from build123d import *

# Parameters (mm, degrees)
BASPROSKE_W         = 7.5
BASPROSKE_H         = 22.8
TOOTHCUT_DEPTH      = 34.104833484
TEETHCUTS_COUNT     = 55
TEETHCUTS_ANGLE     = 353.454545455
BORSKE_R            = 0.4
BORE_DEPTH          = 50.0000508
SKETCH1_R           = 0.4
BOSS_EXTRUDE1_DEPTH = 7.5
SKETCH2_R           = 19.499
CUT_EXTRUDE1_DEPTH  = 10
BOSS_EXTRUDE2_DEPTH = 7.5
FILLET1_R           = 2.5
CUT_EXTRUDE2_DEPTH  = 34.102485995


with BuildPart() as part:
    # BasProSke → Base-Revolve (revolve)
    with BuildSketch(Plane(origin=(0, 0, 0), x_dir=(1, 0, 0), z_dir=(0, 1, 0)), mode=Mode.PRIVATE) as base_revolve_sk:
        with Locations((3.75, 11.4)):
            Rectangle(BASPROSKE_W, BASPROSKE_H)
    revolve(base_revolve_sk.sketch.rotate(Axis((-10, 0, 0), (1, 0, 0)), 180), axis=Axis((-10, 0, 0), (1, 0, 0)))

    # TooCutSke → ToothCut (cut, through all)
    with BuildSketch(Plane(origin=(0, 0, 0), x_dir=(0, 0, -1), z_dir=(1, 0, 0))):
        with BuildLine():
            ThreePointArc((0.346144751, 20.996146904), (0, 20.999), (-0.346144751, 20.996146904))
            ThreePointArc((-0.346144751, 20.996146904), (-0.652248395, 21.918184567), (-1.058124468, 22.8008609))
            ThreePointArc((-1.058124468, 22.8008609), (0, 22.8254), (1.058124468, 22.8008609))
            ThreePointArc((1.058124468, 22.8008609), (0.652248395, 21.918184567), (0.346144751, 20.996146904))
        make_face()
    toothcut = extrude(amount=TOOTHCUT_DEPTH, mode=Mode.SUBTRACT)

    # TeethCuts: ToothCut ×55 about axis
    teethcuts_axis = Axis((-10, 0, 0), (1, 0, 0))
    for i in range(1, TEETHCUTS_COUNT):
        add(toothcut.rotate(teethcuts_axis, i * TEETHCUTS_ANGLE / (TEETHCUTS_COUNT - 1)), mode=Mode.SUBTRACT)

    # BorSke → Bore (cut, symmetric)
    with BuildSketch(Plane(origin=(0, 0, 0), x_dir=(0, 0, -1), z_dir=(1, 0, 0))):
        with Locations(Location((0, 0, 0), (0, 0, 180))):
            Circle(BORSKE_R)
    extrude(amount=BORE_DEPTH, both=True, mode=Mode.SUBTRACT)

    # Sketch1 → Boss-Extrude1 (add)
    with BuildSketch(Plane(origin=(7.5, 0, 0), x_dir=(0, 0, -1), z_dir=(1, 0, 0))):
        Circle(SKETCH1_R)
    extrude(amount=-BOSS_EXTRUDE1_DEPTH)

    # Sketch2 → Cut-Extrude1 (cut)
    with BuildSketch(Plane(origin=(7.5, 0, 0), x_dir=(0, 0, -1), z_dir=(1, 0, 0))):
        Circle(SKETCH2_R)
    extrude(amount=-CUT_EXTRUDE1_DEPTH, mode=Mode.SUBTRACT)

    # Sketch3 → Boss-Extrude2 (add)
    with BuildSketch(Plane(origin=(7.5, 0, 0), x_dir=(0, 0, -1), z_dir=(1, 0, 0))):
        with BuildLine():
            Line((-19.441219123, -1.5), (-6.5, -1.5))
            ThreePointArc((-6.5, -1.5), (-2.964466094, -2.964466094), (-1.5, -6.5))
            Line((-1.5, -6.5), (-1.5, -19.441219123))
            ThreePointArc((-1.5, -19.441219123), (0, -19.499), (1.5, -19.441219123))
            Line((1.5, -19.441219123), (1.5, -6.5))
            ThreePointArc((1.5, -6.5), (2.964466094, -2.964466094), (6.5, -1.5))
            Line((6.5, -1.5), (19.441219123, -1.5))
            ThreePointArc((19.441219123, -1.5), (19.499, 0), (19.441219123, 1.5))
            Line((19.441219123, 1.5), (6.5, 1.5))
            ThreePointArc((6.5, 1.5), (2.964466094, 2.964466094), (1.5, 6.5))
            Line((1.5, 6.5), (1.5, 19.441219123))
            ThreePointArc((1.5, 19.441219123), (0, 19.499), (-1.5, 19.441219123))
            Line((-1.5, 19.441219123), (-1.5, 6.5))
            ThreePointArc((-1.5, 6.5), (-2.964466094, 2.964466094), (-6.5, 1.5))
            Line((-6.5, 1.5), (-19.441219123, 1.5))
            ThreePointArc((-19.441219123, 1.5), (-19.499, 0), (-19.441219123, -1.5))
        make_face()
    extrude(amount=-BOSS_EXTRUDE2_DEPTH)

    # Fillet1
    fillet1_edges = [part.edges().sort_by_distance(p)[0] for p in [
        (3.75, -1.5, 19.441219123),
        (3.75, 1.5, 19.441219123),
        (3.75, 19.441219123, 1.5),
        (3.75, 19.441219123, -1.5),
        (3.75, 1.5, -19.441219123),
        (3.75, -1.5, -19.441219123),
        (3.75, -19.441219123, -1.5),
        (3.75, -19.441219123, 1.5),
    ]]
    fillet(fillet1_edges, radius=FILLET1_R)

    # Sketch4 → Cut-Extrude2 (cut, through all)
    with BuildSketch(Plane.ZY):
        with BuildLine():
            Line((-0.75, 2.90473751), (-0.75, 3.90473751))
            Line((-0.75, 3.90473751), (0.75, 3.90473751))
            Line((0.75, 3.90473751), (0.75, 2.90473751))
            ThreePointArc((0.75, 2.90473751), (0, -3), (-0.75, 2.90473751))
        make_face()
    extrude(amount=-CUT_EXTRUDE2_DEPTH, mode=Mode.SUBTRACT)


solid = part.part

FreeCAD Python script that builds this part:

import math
import FreeCAD as App
import Part
import Sketcher

V = App.Vector
Q = App.Units.Quantity


def edges_at(feature, points):
    """Names of the edges that pass closest to the given points."""
    edges = feature.Shape.Edges
    near = lambda p: min(range(len(edges)), key=lambda i: edges[i].distToShape(Part.Vertex(*p))[0])
    return sorted({f"Edge{near(p) + 1}" for p in points})

doc = App.newDocument("Part")
body = doc.addObject("PartDesign::Body", "Body")

sketch1 = body.newObject("Sketcher::SketchObject", "Sketch")
sketch1.AttachmentSupport = (doc.getObject("XZ_Plane"), [""])
sketch1.MapMode = "FlatFace"
sketch1.addGeometry(Part.LineSegment(V(0, -23, 0), V(0, 0, 0)), False)
sketch1.addGeometry(Part.LineSegment(V(0, 0, 0), V(8, 0, 0)), False)
sketch1.addGeometry(Part.LineSegment(V(8, 0, 0), V(8, -23, 0)), False)
sketch1.addGeometry(Part.LineSegment(V(8, -23, 0), V(0, -23, 0)), False)
sketch1.addConstraint(Sketcher.Constraint("Coincident", 0, 2, 1, 1))
sketch1.addConstraint(Sketcher.Constraint("Coincident", 1, 2, 2, 1))
sketch1.addConstraint(Sketcher.Constraint("Coincident", 2, 2, 3, 1))
sketch1.addConstraint(Sketcher.Constraint("Coincident", 3, 2, 0, 1))
sketch1.addConstraint(Sketcher.Constraint("Vertical", 0))
sketch1.addConstraint(Sketcher.Constraint("Horizontal", 1))
sketch1.addConstraint(Sketcher.Constraint("Vertical", 2))
sketch1.addConstraint(Sketcher.Constraint("Horizontal", 3))
sketch1.addConstraint(Sketcher.Constraint("Coincident", 0, 2, -1, 1))
sketch1.addConstraint(Sketcher.Constraint("DistanceX", 1, 1, 1, 2, Q("7.5 mm")))
sketch1.addConstraint(Sketcher.Constraint("DistanceY", 0, 1, 0, 2, Q("22.8 mm")))
revolution = body.newObject("PartDesign::Revolution", "Revolution")
revolution.Profile = sketch1
revolution.ReferenceAxis = (sketch1, ["H_Axis"])
revolution.Angle = 360

sketch2 = body.newObject("Sketcher::SketchObject", "Sketch001")
sketch2.AttachmentSupport = (doc.getObject("YZ_Plane"), [""])
sketch2.MapMode = "FlatFace"
sketch2.addGeometry(Part.ArcOfCircle(Part.Circle(V(0, 0, 0), V(0, 0, 1), 21), math.radians(-0.94), math.radians(0.94)), False)
sketch2.addGeometry(Part.ArcOfCircle(Part.Circle(V(18.7, -8.8, 0), V(0, 0, 1), 8.8), math.radians(62.14), math.radians(74.8)), False)
sketch2.addGeometry(Part.ArcOfCircle(Part.Circle(V(0, 0, 0), V(0, 0, 1), 22.8), math.radians(-2.66), math.radians(2.66)), False)
sketch2.addGeometry(Part.ArcOfCircle(Part.Circle(V(18.7, 8.8, 0), V(0, 0, 1), 8.8), math.radians(-74.8), math.radians(-62.14)), False)
sketch2.addConstraint(Sketcher.Constraint("Coincident", 0, 1, 1, 2))
sketch2.addConstraint(Sketcher.Constraint("Coincident", 1, 1, 2, 1))
sketch2.addConstraint(Sketcher.Constraint("Coincident", 2, 2, 3, 2))
sketch2.addConstraint(Sketcher.Constraint("Coincident", 3, 1, 0, 2))
sketch2.addConstraint(Sketcher.Constraint("Coincident", 0, 3, -1, 1))
sketch2.addConstraint(Sketcher.Constraint("Coincident", 2, 3, -1, 1))
sketch2.addConstraint(Sketcher.Constraint("Equal", 1, 3))
sketch2.addConstraint(Sketcher.Constraint("Symmetric", 1, 3, 3, 3, -1))
sketch2.addConstraint(Sketcher.Constraint("Radius", 1, Q("8.8 mm")))
sketch2.addConstraint(Sketcher.Constraint("Radius", 0, Q("20.999001 mm")))
sketch2.addConstraint(Sketcher.Constraint("Radius", 2, Q("22.8254 mm")))
sketch2.addConstraint(Sketcher.Constraint("DistanceY", 1, 3, 0, 1, Q("8.492101 mm")))
sketch2.addConstraint(Sketcher.Constraint("DistanceX", -1, 1, 1, 1, Q("22.800861 mm")))
pocket1 = body.newObject("PartDesign::Pocket", "Pocket")
pocket1.Profile = sketch2
pocket1.Type = "ThroughAll"
pocket1.Reversed = True
doc.recompute()

polarpattern = body.newObject("PartDesign::PolarPattern", "PolarPattern")
polarpattern.Originals = [pocket1]
polarpattern.Axis = (doc.getObject("X_Axis"), [""])
polarpattern.Angle = 360
polarpattern.Occurrences = 55
body.Tip = polarpattern

sketch3 = body.newObject("Sketcher::SketchObject", "Sketch002")
sketch3.AttachmentSupport = (doc.getObject("YZ_Plane"), [""])
sketch3.MapMode = "FlatFace"
sketch3.addGeometry(Part.Circle(V(0, 0, 0), V(0, 0, 1), 0.4), False)
sketch3.addConstraint(Sketcher.Constraint("Coincident", 0, 3, -1, 1))
sketch3.addConstraint(Sketcher.Constraint("Diameter", 0, Q("0.8 mm")))
pocket2 = body.newObject("PartDesign::Pocket", "Pocket001")
pocket2.Profile = sketch3
pocket2.Length = 100.000102
pocket2.Midplane = True

sketch4 = body.newObject("Sketcher::SketchObject", "Sketch003")
sketch4.AttachmentSupport = (doc.getObject("YZ_Plane"), [""])
sketch4.MapMode = "FlatFace"
sketch4.AttachmentOffset = App.Placement(V(0, 0, 7.5), App.Rotation())
sketch4.addGeometry(Part.Circle(V(0, 0, 0), V(0, 0, 1), 0.4), False)
sketch4.addConstraint(Sketcher.Constraint("Coincident", 0, 3, -1, 1))
sketch4.addConstraint(Sketcher.Constraint("Diameter", 0, Q("0.8 mm")))
pad1 = body.newObject("PartDesign::Pad", "Pad")
pad1.Profile = sketch4
pad1.Length = 7.5
pad1.Reversed = True

sketch5 = body.newObject("Sketcher::SketchObject", "Sketch004")
sketch5.AttachmentSupport = (doc.getObject("YZ_Plane"), [""])
sketch5.MapMode = "FlatFace"
sketch5.AttachmentOffset = App.Placement(V(0, 0, 7.5), App.Rotation())
sketch5.addGeometry(Part.Circle(V(0, 0, 0), V(0, 0, 1), 19), False)
sketch5.addConstraint(Sketcher.Constraint("Coincident", 0, 3, -1, 1))
sketch5.addConstraint(Sketcher.Constraint("Diameter", 0, Q("38.998 mm")))
pocket3 = body.newObject("PartDesign::Pocket", "Pocket002")
pocket3.Profile = sketch5
pocket3.Length = 10

sketch6 = body.newObject("Sketcher::SketchObject", "Sketch005")
sketch6.AttachmentSupport = (doc.getObject("YZ_Plane"), [""])
sketch6.MapMode = "FlatFace"
sketch6.AttachmentOffset = App.Placement(V(0, 0, 7.5), App.Rotation())
sketch6.addGeometry(Part.LineSegment(V(-1.5, 19.4, 0), V(-1.5, 6.5, 0)), False)
sketch6.addGeometry(Part.ArcOfCircle(Part.Circle(V(-6.5, 6.5, 0), V(0, 0, 1), 5), math.radians(-90), math.radians(0)), False)
sketch6.addGeometry(Part.LineSegment(V(-6.5, 1.5, 0), V(-19.4, 1.5, 0)), False)
sketch6.addGeometry(Part.ArcOfCircle(Part.Circle(V(0, 0, 0), V(0, 0, 1), 19.5), math.radians(175.59), math.radians(184.41)), False)
sketch6.addGeometry(Part.LineSegment(V(-19.4, -1.5, 0), V(-6.5, -1.5, 0)), False)
sketch6.addGeometry(Part.ArcOfCircle(Part.Circle(V(-6.5, -6.5, 0), V(0, 0, 1), 5), math.radians(0), math.radians(90)), False)
sketch6.addGeometry(Part.LineSegment(V(-1.5, -6.5, 0), V(-1.5, -19.4, 0)), False)
sketch6.addGeometry(Part.ArcOfCircle(Part.Circle(V(0, 0, 0), V(0, 0, 1), 19.5), math.radians(-94.41), math.radians(-85.59)), False)
sketch6.addGeometry(Part.LineSegment(V(1.5, -19.4, 0), V(1.5, -6.5, 0)), False)
sketch6.addGeometry(Part.ArcOfCircle(Part.Circle(V(6.5, -6.5, 0), V(0, 0, 1), 5), math.radians(90), math.radians(180)), False)
sketch6.addGeometry(Part.LineSegment(V(6.5, -1.5, 0), V(19.4, -1.5, 0)), False)
sketch6.addGeometry(Part.ArcOfCircle(Part.Circle(V(0, 0, 0), V(0, 0, 1), 19.5), math.radians(-4.41), math.radians(4.41)), False)
sketch6.addGeometry(Part.LineSegment(V(19.4, 1.5, 0), V(6.5, 1.5, 0)), False)
sketch6.addGeometry(Part.ArcOfCircle(Part.Circle(V(6.5, 6.5, 0), V(0, 0, 1), 5), math.radians(180), math.radians(270)), False)
sketch6.addGeometry(Part.LineSegment(V(1.5, 6.5, 0), V(1.5, 19.4, 0)), False)
sketch6.addGeometry(Part.ArcOfCircle(Part.Circle(V(0, 0, 0), V(0, 0, 1), 19.5), math.radians(85.59), math.radians(94.41)), False)
sketch6.addConstraint(Sketcher.Constraint("Tangent", 0, 2, 1, 2))
sketch6.addConstraint(Sketcher.Constraint("Tangent", 1, 1, 2, 1))
sketch6.addConstraint(Sketcher.Constraint("Coincident", 2, 2, 3, 1))
sketch6.addConstraint(Sketcher.Constraint("Coincident", 3, 2, 4, 1))
sketch6.addConstraint(Sketcher.Constraint("Tangent", 4, 2, 5, 2))
sketch6.addConstraint(Sketcher.Constraint("Tangent", 5, 1, 6, 1))
sketch6.addConstraint(Sketcher.Constraint("Coincident", 6, 2, 7, 1))
sketch6.addConstraint(Sketcher.Constraint("Coincident", 7, 2, 8, 1))
sketch6.addConstraint(Sketcher.Constraint("Tangent", 8, 2, 9, 2))
sketch6.addConstraint(Sketcher.Constraint("Tangent", 9, 1, 10, 1))
sketch6.addConstraint(Sketcher.Constraint("Coincident", 10, 2, 11, 1))
sketch6.addConstraint(Sketcher.Constraint("Coincident", 11, 2, 12, 1))
sketch6.addConstraint(Sketcher.Constraint("Tangent", 12, 2, 13, 2))
sketch6.addConstraint(Sketcher.Constraint("Tangent", 13, 1, 14, 1))
sketch6.addConstraint(Sketcher.Constraint("Coincident", 14, 2, 15, 1))
sketch6.addConstraint(Sketcher.Constraint("Coincident", 15, 2, 0, 1))
sketch6.addConstraint(Sketcher.Constraint("Vertical", 0))
sketch6.addConstraint(Sketcher.Constraint("Horizontal", 2))
sketch6.addConstraint(Sketcher.Constraint("Horizontal", 4))
sketch6.addConstraint(Sketcher.Constraint("Vertical", 6))
sketch6.addConstraint(Sketcher.Constraint("Vertical", 8))
sketch6.addConstraint(Sketcher.Constraint("Horizontal", 10))
sketch6.addConstraint(Sketcher.Constraint("Horizontal", 12))
sketch6.addConstraint(Sketcher.Constraint("Vertical", 14))
sketch6.addConstraint(Sketcher.Constraint("Coincident", 3, 3, -1, 1))
sketch6.addConstraint(Sketcher.Constraint("Coincident", 7, 3, -1, 1))
sketch6.addConstraint(Sketcher.Constraint("Coincident", 11, 3, -1, 1))
sketch6.addConstraint(Sketcher.Constraint("Coincident", 15, 3, -1, 1))
sketch6.addConstraint(Sketcher.Constraint("Equal", 1, 5))
sketch6.addConstraint(Sketcher.Constraint("Equal", 3, 7))
sketch6.addConstraint(Sketcher.Constraint("Equal", 5, 9))
sketch6.addConstraint(Sketcher.Constraint("Equal", 7, 11))
sketch6.addConstraint(Sketcher.Constraint("Equal", 9, 13))
sketch6.addConstraint(Sketcher.Constraint("Equal", 11, 15))
sketch6.addConstraint(Sketcher.Constraint("Symmetric", 1, 3, 9, 3, -1, 1))
sketch6.addConstraint(Sketcher.Constraint("Symmetric", 5, 3, 13, 3, -1, 1))
sketch6.addConstraint(Sketcher.Constraint("Symmetric", 5, 3, 9, 3, -2))
sketch6.addConstraint(Sketcher.Constraint("Equal", 12, 0))
sketch6.addConstraint(Sketcher.Constraint("Radius", 1, Q("5 mm")))
sketch6.addConstraint(Sketcher.Constraint("Radius", 3, Q("19.499 mm")))
sketch6.addConstraint(Sketcher.Constraint("DistanceY", 5, 3, 1, 3, Q("13 mm")))
pad2 = body.newObject("PartDesign::Pad", "Pad001")
pad2.Profile = sketch6
pad2.Length = 7.5
pad2.Reversed = True
doc.recompute()

fillet = body.newObject("PartDesign::Fillet", "Fillet")
fillet.Base = (pad2, edges_at(pad2, [
    (3.75, -1.5, 19.441),
    (3.75, 1.5, 19.441),
    (3.75, 19.441, 1.5),
    (3.75, 19.441, -1.5),
    (3.75, 1.5, -19.441),
    (3.75, -1.5, -19.441),
    (3.75, -19.441, -1.5),
    (3.75, -19.441, 1.5),
]))
fillet.Radius = 2.5

sketch7 = body.newObject("Sketcher::SketchObject", "Sketch006")
sketch7.AttachmentSupport = (doc.getObject("YZ_Plane"), [""])
sketch7.MapMode = "FlatFace"
sketch7.addGeometry(Part.LineSegment(V(3.9, -0.8, 0), V(2.9, -0.8, 0)), False)
sketch7.addGeometry(Part.ArcOfCircle(Part.Circle(V(0, 0, 0), V(0, 0, 1), 3), math.radians(14), math.radians(346)), False)
sketch7.addGeometry(Part.LineSegment(V(2.9, 0.8, 0), V(3.9, 0.8, 0)), False)
sketch7.addGeometry(Part.LineSegment(V(3.9, 0.8, 0), V(3.9, -0.8, 0)), False)
sketch7.addConstraint(Sketcher.Constraint("Coincident", 0, 2, 1, 2))
sketch7.addConstraint(Sketcher.Constraint("Coincident", 1, 1, 2, 1))
sketch7.addConstraint(Sketcher.Constraint("Coincident", 2, 2, 3, 1))
sketch7.addConstraint(Sketcher.Constraint("Coincident", 3, 2, 0, 1))
sketch7.addConstraint(Sketcher.Constraint("Horizontal", 0))
sketch7.addConstraint(Sketcher.Constraint("Horizontal", 2))
sketch7.addConstraint(Sketcher.Constraint("Vertical", 3))
sketch7.addConstraint(Sketcher.Constraint("Coincident", 1, 3, -1, 1))
sketch7.addConstraint(Sketcher.Constraint("Vertical", 0, 2, 1, 1))
sketch7.addConstraint(Sketcher.Constraint("Radius", 1, Q("3 mm")))
sketch7.addConstraint(Sketcher.Constraint("DistanceX", 0, 2, 0, 1, Q("1 mm")))
sketch7.addConstraint(Sketcher.Constraint("DistanceY", 3, 2, 3, 1, Q("1.5 mm")))
pocket4 = body.newObject("PartDesign::Pocket", "Pocket003")
pocket4.Profile = sketch7
pocket4.Type = "ThroughAll"
pocket4.Reversed = True

doc.recompute()
